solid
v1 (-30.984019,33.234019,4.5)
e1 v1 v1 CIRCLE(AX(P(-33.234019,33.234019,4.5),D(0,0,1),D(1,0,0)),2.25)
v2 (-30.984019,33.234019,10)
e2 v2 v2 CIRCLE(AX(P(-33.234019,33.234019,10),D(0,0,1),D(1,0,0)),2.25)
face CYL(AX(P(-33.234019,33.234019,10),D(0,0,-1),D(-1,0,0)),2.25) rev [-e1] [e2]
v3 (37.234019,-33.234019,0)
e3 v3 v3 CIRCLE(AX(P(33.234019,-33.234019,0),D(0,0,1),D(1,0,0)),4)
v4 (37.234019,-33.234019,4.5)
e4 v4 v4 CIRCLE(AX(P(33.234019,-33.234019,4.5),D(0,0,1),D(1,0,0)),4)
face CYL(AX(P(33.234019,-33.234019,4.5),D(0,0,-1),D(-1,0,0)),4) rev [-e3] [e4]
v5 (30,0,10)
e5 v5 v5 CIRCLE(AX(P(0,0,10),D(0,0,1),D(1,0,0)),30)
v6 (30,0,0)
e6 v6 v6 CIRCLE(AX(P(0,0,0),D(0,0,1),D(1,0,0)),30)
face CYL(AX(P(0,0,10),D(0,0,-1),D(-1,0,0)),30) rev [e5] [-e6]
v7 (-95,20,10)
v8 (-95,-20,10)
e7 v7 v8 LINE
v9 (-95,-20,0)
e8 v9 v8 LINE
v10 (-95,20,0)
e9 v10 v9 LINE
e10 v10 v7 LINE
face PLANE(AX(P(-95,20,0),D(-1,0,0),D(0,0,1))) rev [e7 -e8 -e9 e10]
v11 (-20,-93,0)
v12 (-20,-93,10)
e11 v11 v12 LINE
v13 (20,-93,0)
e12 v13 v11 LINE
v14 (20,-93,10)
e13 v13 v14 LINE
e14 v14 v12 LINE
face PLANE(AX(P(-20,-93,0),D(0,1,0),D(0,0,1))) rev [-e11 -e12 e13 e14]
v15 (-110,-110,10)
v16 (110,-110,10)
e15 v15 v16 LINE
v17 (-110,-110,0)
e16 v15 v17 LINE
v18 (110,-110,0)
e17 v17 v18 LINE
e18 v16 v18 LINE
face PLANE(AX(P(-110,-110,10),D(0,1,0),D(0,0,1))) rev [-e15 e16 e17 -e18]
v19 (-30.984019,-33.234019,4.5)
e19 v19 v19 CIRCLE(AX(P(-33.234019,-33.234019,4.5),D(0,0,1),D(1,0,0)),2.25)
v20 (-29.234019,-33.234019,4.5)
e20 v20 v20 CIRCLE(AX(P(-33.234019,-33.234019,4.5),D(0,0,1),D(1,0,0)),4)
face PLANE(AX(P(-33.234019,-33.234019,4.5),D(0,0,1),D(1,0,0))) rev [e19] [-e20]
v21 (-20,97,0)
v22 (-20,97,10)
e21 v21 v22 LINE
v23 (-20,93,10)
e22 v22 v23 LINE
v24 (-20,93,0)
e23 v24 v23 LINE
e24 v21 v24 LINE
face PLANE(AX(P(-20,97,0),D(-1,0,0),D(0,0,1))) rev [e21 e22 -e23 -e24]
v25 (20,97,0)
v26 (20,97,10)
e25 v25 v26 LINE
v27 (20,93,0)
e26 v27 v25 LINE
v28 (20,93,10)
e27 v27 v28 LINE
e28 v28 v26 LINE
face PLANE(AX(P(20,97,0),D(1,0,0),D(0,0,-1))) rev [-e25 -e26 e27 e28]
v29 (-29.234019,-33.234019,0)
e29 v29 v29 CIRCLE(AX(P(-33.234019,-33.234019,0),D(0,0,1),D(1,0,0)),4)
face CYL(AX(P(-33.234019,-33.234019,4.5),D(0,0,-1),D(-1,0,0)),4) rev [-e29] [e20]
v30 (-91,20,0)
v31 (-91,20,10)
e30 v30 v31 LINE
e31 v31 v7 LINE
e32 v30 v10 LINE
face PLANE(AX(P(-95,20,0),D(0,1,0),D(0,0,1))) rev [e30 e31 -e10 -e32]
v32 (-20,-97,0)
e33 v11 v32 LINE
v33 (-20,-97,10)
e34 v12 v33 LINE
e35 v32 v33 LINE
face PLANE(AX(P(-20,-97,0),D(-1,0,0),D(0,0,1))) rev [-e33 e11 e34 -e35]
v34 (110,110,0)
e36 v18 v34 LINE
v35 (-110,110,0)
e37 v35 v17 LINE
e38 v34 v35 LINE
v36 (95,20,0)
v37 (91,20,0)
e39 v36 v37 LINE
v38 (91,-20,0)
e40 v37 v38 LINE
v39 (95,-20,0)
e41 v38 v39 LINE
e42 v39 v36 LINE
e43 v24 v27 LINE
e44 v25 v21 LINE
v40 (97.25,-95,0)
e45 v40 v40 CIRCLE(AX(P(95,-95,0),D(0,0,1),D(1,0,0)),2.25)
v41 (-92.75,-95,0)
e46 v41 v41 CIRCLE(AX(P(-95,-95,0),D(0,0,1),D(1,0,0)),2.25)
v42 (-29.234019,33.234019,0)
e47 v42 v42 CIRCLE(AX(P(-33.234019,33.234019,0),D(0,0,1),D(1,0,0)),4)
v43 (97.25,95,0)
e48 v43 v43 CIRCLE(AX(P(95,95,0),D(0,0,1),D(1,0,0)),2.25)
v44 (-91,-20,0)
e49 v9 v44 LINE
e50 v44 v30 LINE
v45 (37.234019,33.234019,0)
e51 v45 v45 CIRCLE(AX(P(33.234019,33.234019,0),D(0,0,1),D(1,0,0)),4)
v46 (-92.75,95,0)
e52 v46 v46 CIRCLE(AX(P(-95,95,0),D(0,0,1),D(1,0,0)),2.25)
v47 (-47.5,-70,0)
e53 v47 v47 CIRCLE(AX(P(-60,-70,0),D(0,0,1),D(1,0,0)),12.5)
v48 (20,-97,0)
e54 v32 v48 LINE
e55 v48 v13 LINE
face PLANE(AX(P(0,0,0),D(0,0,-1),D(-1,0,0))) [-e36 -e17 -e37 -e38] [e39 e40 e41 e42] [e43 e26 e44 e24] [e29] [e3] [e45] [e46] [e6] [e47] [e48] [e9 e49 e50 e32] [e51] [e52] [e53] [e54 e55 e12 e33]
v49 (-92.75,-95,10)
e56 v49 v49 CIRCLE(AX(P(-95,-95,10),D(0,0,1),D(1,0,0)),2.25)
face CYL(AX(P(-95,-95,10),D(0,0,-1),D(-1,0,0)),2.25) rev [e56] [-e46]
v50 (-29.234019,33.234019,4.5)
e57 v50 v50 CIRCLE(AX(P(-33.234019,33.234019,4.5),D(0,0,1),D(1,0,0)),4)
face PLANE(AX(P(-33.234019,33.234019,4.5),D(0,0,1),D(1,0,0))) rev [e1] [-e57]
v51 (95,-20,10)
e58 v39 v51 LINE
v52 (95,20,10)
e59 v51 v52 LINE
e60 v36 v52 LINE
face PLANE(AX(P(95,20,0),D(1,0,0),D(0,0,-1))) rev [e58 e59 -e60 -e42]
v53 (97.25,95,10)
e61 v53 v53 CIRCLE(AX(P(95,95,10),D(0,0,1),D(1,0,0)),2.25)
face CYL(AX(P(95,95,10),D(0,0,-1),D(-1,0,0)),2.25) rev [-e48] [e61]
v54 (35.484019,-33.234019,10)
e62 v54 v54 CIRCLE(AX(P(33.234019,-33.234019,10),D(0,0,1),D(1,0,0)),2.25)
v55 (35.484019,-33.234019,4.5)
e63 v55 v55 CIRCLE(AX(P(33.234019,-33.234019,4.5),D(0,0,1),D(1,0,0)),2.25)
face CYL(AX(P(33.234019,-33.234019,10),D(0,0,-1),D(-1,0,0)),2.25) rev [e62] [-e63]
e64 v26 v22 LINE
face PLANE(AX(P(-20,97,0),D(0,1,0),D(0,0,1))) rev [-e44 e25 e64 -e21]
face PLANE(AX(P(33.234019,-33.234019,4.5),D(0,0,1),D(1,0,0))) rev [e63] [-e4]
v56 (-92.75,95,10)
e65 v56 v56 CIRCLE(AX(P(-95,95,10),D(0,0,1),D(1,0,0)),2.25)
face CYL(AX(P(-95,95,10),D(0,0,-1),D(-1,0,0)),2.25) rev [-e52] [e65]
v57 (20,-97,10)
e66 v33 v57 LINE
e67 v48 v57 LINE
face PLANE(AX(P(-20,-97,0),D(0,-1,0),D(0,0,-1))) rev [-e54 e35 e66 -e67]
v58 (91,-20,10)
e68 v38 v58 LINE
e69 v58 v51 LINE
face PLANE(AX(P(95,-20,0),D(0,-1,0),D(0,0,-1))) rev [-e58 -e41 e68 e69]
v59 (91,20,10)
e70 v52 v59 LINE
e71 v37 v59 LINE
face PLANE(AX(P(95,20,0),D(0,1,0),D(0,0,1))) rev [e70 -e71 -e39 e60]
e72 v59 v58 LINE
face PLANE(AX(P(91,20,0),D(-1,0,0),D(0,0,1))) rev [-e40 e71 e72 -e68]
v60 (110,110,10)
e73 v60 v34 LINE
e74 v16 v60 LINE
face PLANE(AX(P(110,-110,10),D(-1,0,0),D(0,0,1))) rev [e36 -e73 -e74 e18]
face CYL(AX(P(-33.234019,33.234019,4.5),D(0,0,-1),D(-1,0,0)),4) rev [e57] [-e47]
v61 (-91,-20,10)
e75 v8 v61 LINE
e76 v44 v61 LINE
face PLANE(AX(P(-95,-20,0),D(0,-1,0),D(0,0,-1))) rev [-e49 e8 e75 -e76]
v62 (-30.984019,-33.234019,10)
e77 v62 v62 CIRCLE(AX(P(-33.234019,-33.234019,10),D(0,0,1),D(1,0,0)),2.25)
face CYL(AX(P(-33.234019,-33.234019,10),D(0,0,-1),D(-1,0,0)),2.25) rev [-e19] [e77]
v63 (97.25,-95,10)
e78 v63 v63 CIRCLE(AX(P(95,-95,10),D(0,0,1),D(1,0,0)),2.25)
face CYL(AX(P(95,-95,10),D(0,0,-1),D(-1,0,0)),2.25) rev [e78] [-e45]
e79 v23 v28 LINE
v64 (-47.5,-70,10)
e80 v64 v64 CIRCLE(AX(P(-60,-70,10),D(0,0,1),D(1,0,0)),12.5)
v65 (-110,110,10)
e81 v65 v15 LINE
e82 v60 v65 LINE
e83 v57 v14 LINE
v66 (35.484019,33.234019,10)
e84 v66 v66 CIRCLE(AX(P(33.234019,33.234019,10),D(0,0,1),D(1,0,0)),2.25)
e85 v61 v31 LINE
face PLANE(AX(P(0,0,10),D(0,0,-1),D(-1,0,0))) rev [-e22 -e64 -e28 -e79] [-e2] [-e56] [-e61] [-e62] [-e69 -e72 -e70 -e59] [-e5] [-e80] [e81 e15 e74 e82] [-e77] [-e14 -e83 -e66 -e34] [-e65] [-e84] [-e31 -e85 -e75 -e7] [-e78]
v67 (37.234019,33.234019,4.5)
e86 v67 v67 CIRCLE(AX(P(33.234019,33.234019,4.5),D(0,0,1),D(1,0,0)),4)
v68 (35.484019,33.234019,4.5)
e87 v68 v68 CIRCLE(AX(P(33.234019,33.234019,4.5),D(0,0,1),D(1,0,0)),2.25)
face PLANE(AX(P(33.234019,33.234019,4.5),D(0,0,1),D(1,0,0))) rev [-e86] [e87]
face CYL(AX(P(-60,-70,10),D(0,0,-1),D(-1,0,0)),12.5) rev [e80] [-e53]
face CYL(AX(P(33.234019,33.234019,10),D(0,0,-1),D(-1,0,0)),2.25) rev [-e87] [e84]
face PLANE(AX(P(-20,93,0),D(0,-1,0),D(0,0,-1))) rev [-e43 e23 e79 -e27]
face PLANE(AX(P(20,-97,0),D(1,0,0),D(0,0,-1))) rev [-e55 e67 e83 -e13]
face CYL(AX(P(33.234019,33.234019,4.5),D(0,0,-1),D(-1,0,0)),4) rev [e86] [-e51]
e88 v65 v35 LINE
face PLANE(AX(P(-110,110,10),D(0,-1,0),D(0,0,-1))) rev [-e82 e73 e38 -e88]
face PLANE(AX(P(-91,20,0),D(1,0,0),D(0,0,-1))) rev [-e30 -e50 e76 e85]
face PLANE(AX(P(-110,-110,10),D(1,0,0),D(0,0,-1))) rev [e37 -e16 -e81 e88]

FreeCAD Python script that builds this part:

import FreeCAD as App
import Part
import Sketcher

V = App.Vector
Q = App.Units.Quantity

doc = App.newDocument("Part")
body = doc.addObject("PartDesign::Body", "Body")

# Sketch on XY plane
sketch1 = doc.addObject("Sketcher::SketchObject", "Sketch")
body.addObject(sketch1)
sketch1.AttachmentSupport = (doc.XY_Plane, [""])
sketch1.MapMode = "FlatFace"
sketch1.addGeometry(Part.LineSegment(V(-110, 110, 0), V(-110, -110, 0)), False)
sketch1.addGeometry(Part.LineSegment(V(-110, -110, 0), V(110, -110, 0)), False)
sketch1.addGeometry(Part.LineSegment(V(110, -110, 0), V(110, 110, 0)), False)
sketch1.addGeometry(Part.LineSegment(V(110, 110, 0), V(-110, 110, 0)), False)
sketch1.addConstraint(Sketcher.Constraint("Coincident", 0, 2, 1, 1))
sketch1.addConstraint(Sketcher.Constraint("Coincident", 1, 2, 2, 1))
sketch1.addConstraint(Sketcher.Constraint("Coincident", 2, 2, 3, 1))
sketch1.addConstraint(Sketcher.Constraint("Coincident", 3, 2, 0, 1))
sketch1.addConstraint(Sketcher.Constraint("Vertical", 0))
sketch1.addConstraint(Sketcher.Constraint("Horizontal", 1))
sketch1.addConstraint(Sketcher.Constraint("Vertical", 2))
sketch1.addConstraint(Sketcher.Constraint("Horizontal", 3))
sketch1.addConstraint(Sketcher.Constraint("Symmetric", 0, 2, 2, 2, -1, 1))
sketch1.addConstraint(Sketcher.Constraint("Equal", 3, 0))
sketch1.addConstraint(Sketcher.Constraint("DistanceX", 1, 1, 1, 2, Q("220 mm")))
pad1 = doc.addObject("PartDesign::Pad", "Pad")
body.addObject(pad1)
pad1.Profile = sketch1
pad1.Length = 10

# Sketch on XY plane
sketch2 = doc.addObject("Sketcher::SketchObject", "Sketch001")
body.addObject(sketch2)
sketch2.AttachmentSupport = (doc.XY_Plane, [""])
sketch2.MapMode = "FlatFace"
sketch2.addGeometry(Part.Circle(V(0, 0, 0), V(0, 0, 1), 30), False)
sketch2.addConstraint(Sketcher.Constraint("Coincident", 0, 3, -1, 1))
sketch2.addConstraint(Sketcher.Constraint("Diameter", 0, Q("60 mm")))
pocket1 = doc.addObject("PartDesign::Pocket", "Pocket")
body.addObject(pocket1)
pocket1.Profile = sketch2
pocket1.Length = 10
pocket1.Reversed = True

# Sketch on XY plane
sketch3 = doc.addObject("Sketcher::SketchObject", "Sketch002")
body.addObject(sketch3)
sketch3.AttachmentSupport = (doc.XY_Plane, [""])
sketch3.MapMode = "FlatFace"
sketch3.addGeometry(Part.Circle(V(33.2, 33.2, 0), V(0, 0, 1), 2.2), False)
sketch3.addGeometry(Part.Circle(V(-33.2, 33.2, 0), V(0, 0, 1), 2.2), False)
sketch3.addGeometry(Part.Circle(V(-33.2, -33.2, 0), V(0, 0, 1), 2.2), False)
sketch3.addGeometry(Part.Circle(V(33.2, -33.2, 0), V(0, 0, 1), 2.2), False)
sketch3.addConstraint(Sketcher.Constraint("Equal", 0, 1))
sketch3.addConstraint(Sketcher.Constraint("Equal", 1, 2))
sketch3.addConstraint(Sketcher.Constraint("Equal", 2, 3))
sketch3.addConstraint(Sketcher.Constraint("Symmetric", 0, 3, 2, 3, -1, 1))
sketch3.addConstraint(Sketcher.Constraint("Symmetric", 1, 3, 3, 3, -1, 1))
sketch3.addConstraint(Sketcher.Constraint("Symmetric", 0, 3, 1, 3, -2))
sketch3.addConstraint(Sketcher.Constraint("Diameter", 0, Q("4.5 mm")))
sketch3.addConstraint(Sketcher.Constraint("DistanceX", -1, 1, 0, 3, Q("33.234019 mm")))
sketch3.addConstraint(Sketcher.Constraint("DistanceY", -1, 1, 0, 3, Q("33.234019 mm")))
pocket2 = doc.addObject("PartDesign::Pocket", "Pocket001")
body.addObject(pocket2)
pocket2.Profile = sketch3
pocket2.Length = 10
pocket2.Reversed = True

# Sketch on XY plane
sketch4 = doc.addObject("Sketcher::SketchObject", "Sketch003")
body.addObject(sketch4)
sketch4.AttachmentSupport = (doc.XY_Plane, [""])
sketch4.MapMode = "FlatFace"
sketch4.addGeometry(Part.Circle(V(33.2, 33.2, 0), V(0, 0, 1), 4), False)
sketch4.addGeometry(Part.Circle(V(-33.2, 33.2, 0), V(0, 0, 1), 4), False)
sketch4.addGeometry(Part.Circle(V(-33.2, -33.2, 0), V(0, 0, 1), 4), False)
sketch4.addGeometry(Part.Circle(V(33.2, -33.2, 0), V(0, 0, 1), 4), False)
sketch4.addConstraint(Sketcher.Constraint("Equal", 0, 1))
sketch4.addConstraint(Sketcher.Constraint("Equal", 1, 2))
sketch4.addConstraint(Sketcher.Constraint("Equal", 2, 3))
sketch4.addConstraint(Sketcher.Constraint("Symmetric", 0, 3, 2, 3, -1, 1))
sketch4.addConstraint(Sketcher.Constraint("Symmetric", 1, 3, 3, 3, -1, 1))
sketch4.addConstraint(Sketcher.Constraint("Symmetric", 0, 3, 1, 3, -2))
sketch4.addConstraint(Sketcher.Constraint("Diameter", 0, Q("8 mm")))
sketch4.addConstraint(Sketcher.Constraint("DistanceX", -1, 1, 0, 3, Q("33.234019 mm")))
sketch4.addConstraint(Sketcher.Constraint("DistanceY", -1, 1, 0, 3, Q("33.234019 mm")))
pocket3 = doc.addObject("PartDesign::Pocket", "Pocket002")
body.addObject(pocket3)
pocket3.Profile = sketch4
pocket3.Length = 4.5
pocket3.Reversed = True

# Sketch on XY plane
sketch5 = doc.addObject("Sketcher::SketchObject", "Sketch004")
body.addObject(sketch5)
sketch5.AttachmentSupport = (doc.XY_Plane, [""])
sketch5.MapMode = "FlatFace"
sketch5.addGeometry(Part.Circle(V(-95, -95, 0), V(0, 0, 1), 2.2), False)
sketch5.addGeometry(Part.Circle(V(-95, 95, 0), V(0, 0, 1), 2.2), False)
sketch5.addGeometry(Part.Circle(V(95, -95, 0), V(0, 0, 1), 2.2), False)
sketch5.addGeometry(Part.Circle(V(95, 95, 0), V(0, 0, 1), 2.2), False)
sketch5.addConstraint(Sketcher.Constraint("Equal", 0, 1))
sketch5.addConstraint(Sketcher.Constraint("Equal", 1, 2))
sketch5.addConstraint(Sketcher.Constraint("Equal", 2, 3))
sketch5.addConstraint(Sketcher.Constraint("Symmetric", 1, 3, 2, 3, -1, 1))
sketch5.addConstraint(Sketcher.Constraint("Symmetric", 0, 3, 3, 3, -1, 1))
sketch5.addConstraint(Sketcher.Constraint("Symmetric", 0, 3, 2, 3, -2))
sketch5.addConstraint(Sketcher.Constraint("Diameter", 0, Q("4.5 mm")))
sketch5.addConstraint(Sketcher.Constraint("DistanceX", 0, 3, -1, 1, Q("95 mm")))
sketch5.addConstraint(Sketcher.Constraint("DistanceY", 0, 3, -1, 1, Q("95 mm")))
pocket4 = doc.addObject("PartDesign::Pocket", "Pocket003")
body.addObject(pocket4)
pocket4.Profile = sketch5
pocket4.Length = 10
pocket4.Reversed = True

# Sketch on XY plane
sketch6 = doc.addObject("Sketcher::SketchObject", "Sketch005")
body.addObject(sketch6)
sketch6.AttachmentSupport = (doc.XY_Plane, [""])
sketch6.MapMode = "FlatFace"
sketch6.addGeometry(Part.Circle(V(-60, -70, 0), V(0, 0, 1), 12), False)
sketch6.addConstraint(Sketcher.Constraint("Diameter", 0, Q("25 mm")))
sketch6.addConstraint(Sketcher.Constraint("DistanceX", 0, 3, -1, 1, Q("60 mm")))
sketch6.addConstraint(Sketcher.Constraint("DistanceY", 0, 3, -1, 1, Q("70 mm")))
pocket5 = doc.addObject("PartDesign::Pocket", "Pocket004")
body.addObject(pocket5)
pocket5.Profile = sketch6
pocket5.Length = 10
pocket5.Reversed = True

# Sketch on XY plane
sketch7 = doc.addObject("Sketcher::SketchObject", "Sketch006")
body.addObject(sketch7)
sketch7.AttachmentSupport = (doc.XY_Plane, [""])
sketch7.MapMode = "FlatFace"
sketch7.AttachmentOffset = App.Placement(V(0, 0, 10), App.Rotation())
sketch7.addGeometry(Part.LineSegment(V(-20, -93, 0), V(-20, -97, 0)), False)
sketch7.addGeometry(Part.LineSegment(V(-20, -97, 0), V(20, -97, 0)), False)
sketch7.addGeometry(Part.LineSegment(V(20, -97, 0), V(20, -93, 0)), False)
sketch7.addGeometry(Part.LineSegment(V(20, -93, 0), V(-20, -93, 0)), False)
sketch7.addGeometry(Part.LineSegment(V(-20, 97, 0), V(-20, 93, 0)), False)
sketch7.addGeometry(Part.LineSegment(V(-20, 93, 0), V(20, 93, 0)), False)
sketch7.addGeometry(Part.LineSegment(V(20, 93, 0), V(20, 97, 0)), False)
sketch7.addGeometry(Part.LineSegment(V(20, 97, 0), V(-20, 97, 0)), False)
sketch7.addGeometry(Part.LineSegment(V(91, 20, 0), V(91, -20, 0)), False)
sketch7.addGeometry(Part.LineSegment(V(91, -20, 0), V(95, -20, 0)), False)
sketch7.addGeometry(Part.LineSegment(V(95, -20, 0), V(95, 20, 0)), False)
sketch7.addGeometry(Part.LineSegment(V(95, 20, 0), V(91, 20, 0)), False)
sketch7.addGeometry(Part.LineSegment(V(-95, 20, 0), V(-95, -20, 0)), False)
sketch7.addGeometry(Part.LineSegment(V(-95, -20, 0), V(-91, -20, 0)), False)
sketch7.addGeometry(Part.LineSegment(V(-91, -20, 0), V(-91, 20, 0)), False)
sketch7.addGeometry(Part.LineSegment(V(-91, 20, 0), V(-95, 20, 0)), False)
sketch7.addConstraint(Sketcher.Constraint("Coincident", 0, 2, 1, 1))
sketch7.addConstraint(Sketcher.Constraint("Coincident", 1, 2, 2, 1))
sketch7.addConstraint(Sketcher.Constraint("Coincident", 2, 2, 3, 1))
sketch7.addConstraint(Sketcher.Constraint("Coincident", 3, 2, 0, 1))
sketch7.addConstraint(Sketcher.Constraint("Coincident", 4, 2, 5, 1))
sketch7.addConstraint(Sketcher.Constraint("Coincident", 5, 2, 6, 1))
sketch7.addConstraint(Sketcher.Constraint("Coincident", 6, 2, 7, 1))
sketch7.addConstraint(Sketcher.Constraint("Coincident", 7, 2, 4, 1))
sketch7.addConstraint(Sketcher.Constraint("Coincident", 8, 2, 9, 1))
sketch7.addConstraint(Sketcher.Constraint("Coincident", 9, 2, 10, 1))
sketch7.addConstraint(Sketcher.Constraint("Coincident", 10, 2, 11, 1))
sketch7.addConstraint(Sketcher.Constraint("Coincident", 11, 2, 8, 1))
sketch7.addConstraint(Sketcher.Constraint("Coincident", 12, 2, 13, 1))
sketch7.addConstraint(Sketcher.Constraint("Coincident", 13, 2, 14, 1))
sketch7.addConstraint(Sketcher.Constraint("Coincident", 14, 2, 15, 1))
sketch7.addConstraint(Sketcher.Constraint("Coincident", 15, 2, 12, 1))
sketch7.addConstraint(Sketcher.Constraint("Vertical", 0))
sketch7.addConstraint(Sketcher.Constraint("Horizontal", 1))
sketch7.addConstraint(Sketcher.Constraint("Vertical", 2))
sketch7.addConstraint(Sketcher.Constraint("Horizontal", 3))
sketch7.addConstraint(Sketcher.Constraint("Vertical", 4))
sketch7.addConstraint(Sketcher.Constraint("Horizontal", 5))
sketch7.addConstraint(Sketcher.Constraint("Vertical", 6))
sketch7.addConstraint(Sketcher.Constraint("Horizontal", 7))
sketch7.addConstraint(Sketcher.Constraint("Vertical", 8))
sketch7.addConstraint(Sketcher.Constraint("Horizontal", 9))
sketch7.addConstraint(Sketcher.Constraint("Vertical", 10))
sketch7.addConstraint(Sketcher.Constraint("Horizontal", 11))
sketch7.addConstraint(Sketcher.Constraint("Vertical", 12))
sketch7.addConstraint(Sketcher.Constraint("Horizontal", 13))
sketch7.addConstraint(Sketcher.Constraint("Vertical", 14))
sketch7.addConstraint(Sketcher.Constraint("Horizontal", 15))
sketch7.addConstraint(Sketcher.Constraint("Symmetric", 2, 2, 4, 2, -1, 1))
sketch7.addConstraint(Sketcher.Constraint("Symmetric", 0, 2, 6, 2, -1, 1))
sketch7.addConstraint(Sketcher.Constraint("Symmetric", 10, 2, 12, 2, -1, 1))
sketch7.addConstraint(Sketcher.Constraint("Symmetric", 8, 2, 14, 2, -1, 1))
sketch7.addConstraint(Sketcher.Constraint("Horizontal", 9, 2, 12, 2))
sketch7.addConstraint(Sketcher.Constraint("Vertical", 3, 2, 4, 2))
sketch7.addConstraint(Sketcher.Constraint("Equal", 15, 0))
sketch7.addConstraint(Sketcher.Constraint("Equal", 7, 8))
sketch7.addConstraint(Sketcher.Constraint("DistanceX", 1, 1, 1, 2, Q("40 mm")))
sketch7.addConstraint(Sketcher.Constraint("DistanceX", 9, 1, 9, 2, Q("4 mm")))
sketch7.addConstraint(Sketcher.Constraint("DistanceY", 0, 2, -1, 1, Q("97 mm")))
sketch7.addConstraint(Sketcher.Constraint("DistanceX", -1, 1, 8, 2, Q("91 mm")))
pocket6 = doc.addObject("PartDesign::Pocket", "Pocket005")
body.addObject(pocket6)
pocket6.Profile = sketch7
pocket6.Type = "ThroughAll"

doc.recompute()
